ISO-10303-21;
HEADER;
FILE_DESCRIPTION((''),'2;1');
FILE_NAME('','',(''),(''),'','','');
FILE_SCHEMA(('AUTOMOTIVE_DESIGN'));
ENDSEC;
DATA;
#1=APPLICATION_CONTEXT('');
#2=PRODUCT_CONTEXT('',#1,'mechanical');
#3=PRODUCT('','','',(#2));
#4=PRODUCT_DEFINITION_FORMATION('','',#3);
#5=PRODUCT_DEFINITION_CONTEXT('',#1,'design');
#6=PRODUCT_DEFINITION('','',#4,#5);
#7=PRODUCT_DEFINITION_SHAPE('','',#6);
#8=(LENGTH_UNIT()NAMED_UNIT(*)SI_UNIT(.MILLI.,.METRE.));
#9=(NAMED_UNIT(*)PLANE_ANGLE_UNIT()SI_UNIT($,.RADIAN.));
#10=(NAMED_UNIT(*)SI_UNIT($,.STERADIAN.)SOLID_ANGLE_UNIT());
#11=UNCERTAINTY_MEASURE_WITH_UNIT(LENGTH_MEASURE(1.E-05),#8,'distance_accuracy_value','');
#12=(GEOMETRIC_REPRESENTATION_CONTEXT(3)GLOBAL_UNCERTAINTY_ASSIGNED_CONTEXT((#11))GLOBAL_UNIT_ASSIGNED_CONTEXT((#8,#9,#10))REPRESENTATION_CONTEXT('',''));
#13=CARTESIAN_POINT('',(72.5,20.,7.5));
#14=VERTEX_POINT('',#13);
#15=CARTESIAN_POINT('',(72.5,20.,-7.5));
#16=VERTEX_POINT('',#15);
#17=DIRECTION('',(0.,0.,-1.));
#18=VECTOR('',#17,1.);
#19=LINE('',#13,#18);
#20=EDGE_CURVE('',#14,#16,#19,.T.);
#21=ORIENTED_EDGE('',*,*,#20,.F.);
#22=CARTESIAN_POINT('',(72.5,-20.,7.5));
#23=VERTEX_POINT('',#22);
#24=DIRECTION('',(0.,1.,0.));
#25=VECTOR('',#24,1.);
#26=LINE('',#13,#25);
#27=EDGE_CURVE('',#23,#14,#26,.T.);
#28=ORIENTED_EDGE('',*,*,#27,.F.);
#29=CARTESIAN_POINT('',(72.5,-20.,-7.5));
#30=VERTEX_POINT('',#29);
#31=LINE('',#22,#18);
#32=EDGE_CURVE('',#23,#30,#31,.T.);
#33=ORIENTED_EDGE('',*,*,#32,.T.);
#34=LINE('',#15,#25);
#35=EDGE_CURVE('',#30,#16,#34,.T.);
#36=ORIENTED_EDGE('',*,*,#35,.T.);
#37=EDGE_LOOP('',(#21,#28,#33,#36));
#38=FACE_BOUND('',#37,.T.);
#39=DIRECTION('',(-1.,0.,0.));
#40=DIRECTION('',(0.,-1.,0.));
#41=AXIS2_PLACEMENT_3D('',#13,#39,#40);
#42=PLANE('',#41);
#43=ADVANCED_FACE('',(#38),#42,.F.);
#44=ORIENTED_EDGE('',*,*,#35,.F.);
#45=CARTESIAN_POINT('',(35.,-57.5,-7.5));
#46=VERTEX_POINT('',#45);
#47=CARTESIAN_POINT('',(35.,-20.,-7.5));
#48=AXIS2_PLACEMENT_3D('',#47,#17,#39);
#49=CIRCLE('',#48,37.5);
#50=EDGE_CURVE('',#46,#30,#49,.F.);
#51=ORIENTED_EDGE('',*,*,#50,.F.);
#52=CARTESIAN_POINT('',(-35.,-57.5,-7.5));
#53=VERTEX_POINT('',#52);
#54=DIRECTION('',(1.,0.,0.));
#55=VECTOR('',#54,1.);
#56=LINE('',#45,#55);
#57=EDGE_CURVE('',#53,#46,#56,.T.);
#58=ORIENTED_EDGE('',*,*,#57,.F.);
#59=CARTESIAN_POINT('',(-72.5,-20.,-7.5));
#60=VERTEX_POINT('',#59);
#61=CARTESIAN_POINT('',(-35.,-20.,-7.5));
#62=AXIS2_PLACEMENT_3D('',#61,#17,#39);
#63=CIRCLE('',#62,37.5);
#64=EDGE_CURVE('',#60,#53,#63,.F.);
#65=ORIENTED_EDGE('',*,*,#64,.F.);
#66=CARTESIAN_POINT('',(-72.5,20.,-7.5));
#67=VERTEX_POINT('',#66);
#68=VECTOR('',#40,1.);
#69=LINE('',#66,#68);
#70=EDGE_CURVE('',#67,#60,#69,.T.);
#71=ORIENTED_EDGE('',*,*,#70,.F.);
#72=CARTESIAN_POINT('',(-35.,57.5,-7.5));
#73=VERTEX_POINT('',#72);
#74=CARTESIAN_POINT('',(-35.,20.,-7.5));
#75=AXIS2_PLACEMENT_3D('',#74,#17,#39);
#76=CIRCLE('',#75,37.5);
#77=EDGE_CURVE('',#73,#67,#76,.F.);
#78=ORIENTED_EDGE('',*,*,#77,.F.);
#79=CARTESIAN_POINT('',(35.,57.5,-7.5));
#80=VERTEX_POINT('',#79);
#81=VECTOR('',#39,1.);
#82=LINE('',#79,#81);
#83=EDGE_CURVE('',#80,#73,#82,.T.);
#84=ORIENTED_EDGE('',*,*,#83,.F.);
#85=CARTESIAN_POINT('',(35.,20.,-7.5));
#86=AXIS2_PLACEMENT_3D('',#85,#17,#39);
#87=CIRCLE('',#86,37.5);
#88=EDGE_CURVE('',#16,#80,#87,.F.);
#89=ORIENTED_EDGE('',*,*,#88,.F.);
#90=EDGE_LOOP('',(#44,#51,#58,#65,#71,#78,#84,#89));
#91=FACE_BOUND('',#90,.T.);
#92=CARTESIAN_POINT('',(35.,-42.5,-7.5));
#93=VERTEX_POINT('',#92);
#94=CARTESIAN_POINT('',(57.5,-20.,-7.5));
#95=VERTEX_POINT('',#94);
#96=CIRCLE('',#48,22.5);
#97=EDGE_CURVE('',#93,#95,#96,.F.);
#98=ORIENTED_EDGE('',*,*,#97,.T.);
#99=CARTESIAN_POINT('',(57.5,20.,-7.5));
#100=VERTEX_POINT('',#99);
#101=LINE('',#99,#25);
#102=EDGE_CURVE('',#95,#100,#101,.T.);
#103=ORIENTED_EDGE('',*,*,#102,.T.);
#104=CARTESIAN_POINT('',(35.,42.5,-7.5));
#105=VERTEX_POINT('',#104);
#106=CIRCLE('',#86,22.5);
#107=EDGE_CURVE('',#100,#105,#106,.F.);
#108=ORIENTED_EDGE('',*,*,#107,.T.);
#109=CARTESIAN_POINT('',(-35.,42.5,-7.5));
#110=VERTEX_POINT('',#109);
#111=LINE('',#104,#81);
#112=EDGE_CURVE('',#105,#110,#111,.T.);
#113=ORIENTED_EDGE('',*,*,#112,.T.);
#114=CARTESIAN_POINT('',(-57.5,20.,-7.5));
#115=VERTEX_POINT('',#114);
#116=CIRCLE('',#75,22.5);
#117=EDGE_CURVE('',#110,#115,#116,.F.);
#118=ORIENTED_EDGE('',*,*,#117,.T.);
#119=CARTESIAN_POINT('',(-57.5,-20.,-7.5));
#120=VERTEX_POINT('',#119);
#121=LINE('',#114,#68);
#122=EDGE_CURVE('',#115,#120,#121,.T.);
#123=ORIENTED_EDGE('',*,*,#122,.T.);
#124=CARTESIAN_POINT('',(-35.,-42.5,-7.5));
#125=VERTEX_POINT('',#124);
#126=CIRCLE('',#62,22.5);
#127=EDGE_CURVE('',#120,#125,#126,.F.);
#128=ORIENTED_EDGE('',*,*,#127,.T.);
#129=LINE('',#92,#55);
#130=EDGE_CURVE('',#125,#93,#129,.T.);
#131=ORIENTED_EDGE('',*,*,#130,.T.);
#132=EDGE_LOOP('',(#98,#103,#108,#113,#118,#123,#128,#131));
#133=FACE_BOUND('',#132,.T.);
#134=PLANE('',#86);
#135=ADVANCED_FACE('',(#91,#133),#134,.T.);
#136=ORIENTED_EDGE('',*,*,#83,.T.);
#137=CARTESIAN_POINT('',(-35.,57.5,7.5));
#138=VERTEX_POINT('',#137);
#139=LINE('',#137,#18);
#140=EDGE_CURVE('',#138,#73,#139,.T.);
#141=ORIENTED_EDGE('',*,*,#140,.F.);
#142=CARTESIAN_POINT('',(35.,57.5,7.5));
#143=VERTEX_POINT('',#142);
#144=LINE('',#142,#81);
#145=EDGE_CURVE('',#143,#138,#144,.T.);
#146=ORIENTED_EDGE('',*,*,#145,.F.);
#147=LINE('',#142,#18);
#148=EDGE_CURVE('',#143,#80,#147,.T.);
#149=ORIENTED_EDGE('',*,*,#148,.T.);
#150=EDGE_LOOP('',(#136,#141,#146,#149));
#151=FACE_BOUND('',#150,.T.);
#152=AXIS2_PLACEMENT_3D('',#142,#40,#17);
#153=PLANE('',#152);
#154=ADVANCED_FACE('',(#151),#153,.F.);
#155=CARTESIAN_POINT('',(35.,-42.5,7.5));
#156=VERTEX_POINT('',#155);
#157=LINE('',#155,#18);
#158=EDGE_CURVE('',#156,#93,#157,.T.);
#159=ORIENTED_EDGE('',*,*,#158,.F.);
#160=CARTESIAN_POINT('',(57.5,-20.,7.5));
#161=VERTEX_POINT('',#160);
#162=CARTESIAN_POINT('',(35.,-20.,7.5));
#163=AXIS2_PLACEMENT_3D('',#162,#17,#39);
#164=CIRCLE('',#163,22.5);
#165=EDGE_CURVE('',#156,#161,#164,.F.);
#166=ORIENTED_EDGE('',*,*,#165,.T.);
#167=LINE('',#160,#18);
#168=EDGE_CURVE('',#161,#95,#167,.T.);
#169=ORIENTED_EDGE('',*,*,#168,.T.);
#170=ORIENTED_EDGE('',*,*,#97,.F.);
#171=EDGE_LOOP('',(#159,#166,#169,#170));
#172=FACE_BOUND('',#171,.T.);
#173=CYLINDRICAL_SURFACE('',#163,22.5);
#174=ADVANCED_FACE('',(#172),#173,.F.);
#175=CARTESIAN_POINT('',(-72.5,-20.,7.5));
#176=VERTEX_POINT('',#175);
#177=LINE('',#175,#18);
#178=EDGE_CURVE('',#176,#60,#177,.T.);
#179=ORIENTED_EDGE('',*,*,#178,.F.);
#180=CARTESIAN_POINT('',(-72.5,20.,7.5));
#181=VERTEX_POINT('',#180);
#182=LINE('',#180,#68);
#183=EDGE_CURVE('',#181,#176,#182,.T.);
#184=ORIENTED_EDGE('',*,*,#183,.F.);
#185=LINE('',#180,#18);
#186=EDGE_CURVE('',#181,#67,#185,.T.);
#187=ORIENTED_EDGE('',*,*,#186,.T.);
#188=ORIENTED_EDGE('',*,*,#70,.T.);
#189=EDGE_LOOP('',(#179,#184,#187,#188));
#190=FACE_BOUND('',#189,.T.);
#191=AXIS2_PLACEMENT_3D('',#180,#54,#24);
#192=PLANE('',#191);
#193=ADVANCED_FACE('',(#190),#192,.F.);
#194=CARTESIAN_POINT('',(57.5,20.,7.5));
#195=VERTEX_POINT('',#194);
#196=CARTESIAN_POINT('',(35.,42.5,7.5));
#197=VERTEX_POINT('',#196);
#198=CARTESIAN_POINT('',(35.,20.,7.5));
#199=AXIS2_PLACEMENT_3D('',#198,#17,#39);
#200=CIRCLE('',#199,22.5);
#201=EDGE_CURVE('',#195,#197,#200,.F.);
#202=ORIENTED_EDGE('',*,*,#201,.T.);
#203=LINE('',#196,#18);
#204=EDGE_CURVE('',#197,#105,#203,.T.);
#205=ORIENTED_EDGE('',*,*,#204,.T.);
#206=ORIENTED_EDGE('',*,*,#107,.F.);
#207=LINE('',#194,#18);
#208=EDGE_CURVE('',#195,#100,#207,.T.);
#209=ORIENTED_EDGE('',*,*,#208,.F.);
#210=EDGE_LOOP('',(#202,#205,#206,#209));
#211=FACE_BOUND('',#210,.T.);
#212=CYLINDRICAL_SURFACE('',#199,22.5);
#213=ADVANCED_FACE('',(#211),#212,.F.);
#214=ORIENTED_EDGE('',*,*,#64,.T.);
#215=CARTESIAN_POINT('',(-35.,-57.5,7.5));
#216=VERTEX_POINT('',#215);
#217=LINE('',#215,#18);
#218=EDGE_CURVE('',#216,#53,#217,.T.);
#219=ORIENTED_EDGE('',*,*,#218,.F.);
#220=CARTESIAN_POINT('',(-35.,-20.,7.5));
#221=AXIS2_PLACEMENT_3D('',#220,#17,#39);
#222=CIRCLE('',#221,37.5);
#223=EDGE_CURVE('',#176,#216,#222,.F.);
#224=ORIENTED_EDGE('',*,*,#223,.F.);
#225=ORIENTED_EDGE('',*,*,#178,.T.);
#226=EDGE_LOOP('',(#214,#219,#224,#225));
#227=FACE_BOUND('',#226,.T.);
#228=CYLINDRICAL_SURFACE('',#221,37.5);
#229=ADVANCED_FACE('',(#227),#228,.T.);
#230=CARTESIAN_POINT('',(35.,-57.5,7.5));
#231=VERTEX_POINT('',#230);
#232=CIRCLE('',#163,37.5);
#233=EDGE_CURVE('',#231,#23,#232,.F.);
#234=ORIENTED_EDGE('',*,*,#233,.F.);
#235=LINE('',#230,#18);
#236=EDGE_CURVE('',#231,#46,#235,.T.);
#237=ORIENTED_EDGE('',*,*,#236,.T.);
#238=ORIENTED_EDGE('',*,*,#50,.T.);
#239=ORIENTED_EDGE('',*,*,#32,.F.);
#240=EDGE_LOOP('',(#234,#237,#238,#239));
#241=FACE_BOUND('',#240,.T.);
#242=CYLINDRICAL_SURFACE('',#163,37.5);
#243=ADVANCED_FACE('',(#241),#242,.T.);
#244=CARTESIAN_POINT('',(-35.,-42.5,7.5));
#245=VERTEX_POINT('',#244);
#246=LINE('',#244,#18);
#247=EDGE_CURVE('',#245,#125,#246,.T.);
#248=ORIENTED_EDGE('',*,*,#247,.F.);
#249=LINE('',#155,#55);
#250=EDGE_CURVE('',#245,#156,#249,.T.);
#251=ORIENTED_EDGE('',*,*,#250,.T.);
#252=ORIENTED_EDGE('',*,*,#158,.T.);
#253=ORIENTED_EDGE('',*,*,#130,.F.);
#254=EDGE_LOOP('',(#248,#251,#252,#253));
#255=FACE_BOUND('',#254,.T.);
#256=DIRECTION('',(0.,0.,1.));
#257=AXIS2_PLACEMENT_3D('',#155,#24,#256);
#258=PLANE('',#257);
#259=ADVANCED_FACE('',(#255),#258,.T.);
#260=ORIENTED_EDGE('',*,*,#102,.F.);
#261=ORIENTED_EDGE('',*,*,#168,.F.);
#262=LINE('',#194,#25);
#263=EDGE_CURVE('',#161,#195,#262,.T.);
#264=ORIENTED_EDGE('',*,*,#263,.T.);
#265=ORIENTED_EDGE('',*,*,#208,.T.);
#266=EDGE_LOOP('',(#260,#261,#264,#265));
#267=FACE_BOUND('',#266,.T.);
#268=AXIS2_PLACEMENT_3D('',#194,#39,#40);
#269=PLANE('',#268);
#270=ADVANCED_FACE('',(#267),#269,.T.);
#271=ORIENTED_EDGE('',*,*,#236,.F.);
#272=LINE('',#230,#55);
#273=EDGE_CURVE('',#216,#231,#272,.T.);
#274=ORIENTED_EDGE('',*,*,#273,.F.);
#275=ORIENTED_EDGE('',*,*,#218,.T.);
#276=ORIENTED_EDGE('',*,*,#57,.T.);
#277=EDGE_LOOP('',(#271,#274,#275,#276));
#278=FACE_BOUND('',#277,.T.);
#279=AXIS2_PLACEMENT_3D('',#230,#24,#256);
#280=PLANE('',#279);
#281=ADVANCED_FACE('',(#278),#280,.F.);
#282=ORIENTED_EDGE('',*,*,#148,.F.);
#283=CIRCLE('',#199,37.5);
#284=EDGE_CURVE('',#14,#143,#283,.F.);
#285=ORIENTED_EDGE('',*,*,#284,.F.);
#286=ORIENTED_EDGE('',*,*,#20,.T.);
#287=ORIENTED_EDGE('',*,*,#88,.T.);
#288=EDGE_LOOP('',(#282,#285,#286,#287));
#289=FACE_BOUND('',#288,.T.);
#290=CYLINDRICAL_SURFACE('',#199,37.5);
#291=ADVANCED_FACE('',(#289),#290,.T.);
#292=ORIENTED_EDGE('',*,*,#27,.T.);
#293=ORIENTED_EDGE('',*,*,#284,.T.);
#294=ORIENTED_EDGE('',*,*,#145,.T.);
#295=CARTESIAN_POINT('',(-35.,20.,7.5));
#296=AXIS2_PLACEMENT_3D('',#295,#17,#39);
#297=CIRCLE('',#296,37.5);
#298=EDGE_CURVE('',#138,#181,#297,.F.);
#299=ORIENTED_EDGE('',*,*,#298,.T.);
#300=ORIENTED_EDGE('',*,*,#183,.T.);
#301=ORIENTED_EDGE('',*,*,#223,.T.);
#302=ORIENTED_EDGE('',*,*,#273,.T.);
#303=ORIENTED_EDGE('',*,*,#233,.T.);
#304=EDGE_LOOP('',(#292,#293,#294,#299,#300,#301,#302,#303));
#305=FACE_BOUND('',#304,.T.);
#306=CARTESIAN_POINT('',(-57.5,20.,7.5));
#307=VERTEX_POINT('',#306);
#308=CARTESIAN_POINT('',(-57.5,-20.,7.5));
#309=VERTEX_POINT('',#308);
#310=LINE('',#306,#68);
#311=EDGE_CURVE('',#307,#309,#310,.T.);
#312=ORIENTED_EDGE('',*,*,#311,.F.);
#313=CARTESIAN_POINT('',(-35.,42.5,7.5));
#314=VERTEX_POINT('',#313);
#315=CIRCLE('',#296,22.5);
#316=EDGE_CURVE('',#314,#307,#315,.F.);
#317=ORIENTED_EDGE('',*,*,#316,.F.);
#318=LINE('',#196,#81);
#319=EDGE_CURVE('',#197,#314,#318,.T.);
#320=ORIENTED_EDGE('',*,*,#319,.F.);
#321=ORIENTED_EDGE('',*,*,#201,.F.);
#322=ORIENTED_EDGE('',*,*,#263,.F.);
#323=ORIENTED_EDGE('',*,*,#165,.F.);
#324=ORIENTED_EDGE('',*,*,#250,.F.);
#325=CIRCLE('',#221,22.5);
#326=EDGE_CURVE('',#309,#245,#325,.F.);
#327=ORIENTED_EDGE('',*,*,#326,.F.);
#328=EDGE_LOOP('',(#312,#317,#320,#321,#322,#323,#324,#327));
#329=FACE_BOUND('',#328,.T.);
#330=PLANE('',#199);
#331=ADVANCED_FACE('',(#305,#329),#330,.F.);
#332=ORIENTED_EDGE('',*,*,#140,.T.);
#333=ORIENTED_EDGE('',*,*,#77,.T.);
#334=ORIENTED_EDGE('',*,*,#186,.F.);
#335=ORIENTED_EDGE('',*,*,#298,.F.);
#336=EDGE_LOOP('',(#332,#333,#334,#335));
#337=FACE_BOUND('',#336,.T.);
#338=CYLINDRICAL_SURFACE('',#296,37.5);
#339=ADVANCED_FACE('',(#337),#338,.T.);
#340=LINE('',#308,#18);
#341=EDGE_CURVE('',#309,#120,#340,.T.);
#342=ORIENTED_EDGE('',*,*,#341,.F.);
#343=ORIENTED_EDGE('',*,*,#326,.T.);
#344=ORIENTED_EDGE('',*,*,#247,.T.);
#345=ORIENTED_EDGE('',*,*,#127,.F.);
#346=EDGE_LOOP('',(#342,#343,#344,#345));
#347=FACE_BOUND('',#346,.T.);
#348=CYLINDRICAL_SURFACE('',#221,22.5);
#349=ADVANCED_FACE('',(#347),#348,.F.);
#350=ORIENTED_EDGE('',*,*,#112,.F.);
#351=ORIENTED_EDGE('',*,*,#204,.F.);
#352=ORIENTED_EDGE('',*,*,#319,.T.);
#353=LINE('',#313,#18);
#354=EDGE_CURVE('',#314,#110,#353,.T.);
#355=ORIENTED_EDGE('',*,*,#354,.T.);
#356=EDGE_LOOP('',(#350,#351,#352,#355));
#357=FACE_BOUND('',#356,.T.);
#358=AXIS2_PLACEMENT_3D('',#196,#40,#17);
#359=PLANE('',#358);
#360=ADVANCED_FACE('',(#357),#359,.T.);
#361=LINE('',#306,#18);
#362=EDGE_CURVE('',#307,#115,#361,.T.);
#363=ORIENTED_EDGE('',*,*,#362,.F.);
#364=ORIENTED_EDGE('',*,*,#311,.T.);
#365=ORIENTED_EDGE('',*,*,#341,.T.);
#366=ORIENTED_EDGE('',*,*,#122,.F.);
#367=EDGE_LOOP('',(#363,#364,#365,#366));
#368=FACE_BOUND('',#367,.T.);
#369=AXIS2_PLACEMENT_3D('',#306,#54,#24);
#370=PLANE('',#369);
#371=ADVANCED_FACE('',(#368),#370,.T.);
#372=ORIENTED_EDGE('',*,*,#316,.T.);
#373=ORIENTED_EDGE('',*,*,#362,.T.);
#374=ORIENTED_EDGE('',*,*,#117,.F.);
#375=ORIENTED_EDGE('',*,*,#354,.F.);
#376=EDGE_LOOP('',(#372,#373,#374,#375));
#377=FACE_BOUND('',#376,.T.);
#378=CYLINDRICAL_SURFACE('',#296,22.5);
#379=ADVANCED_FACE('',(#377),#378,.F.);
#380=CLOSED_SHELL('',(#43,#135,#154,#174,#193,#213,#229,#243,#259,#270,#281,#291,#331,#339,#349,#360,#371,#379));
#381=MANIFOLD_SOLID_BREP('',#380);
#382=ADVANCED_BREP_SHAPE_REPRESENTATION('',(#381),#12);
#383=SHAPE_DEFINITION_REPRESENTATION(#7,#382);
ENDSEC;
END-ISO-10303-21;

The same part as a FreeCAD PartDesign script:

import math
import FreeCAD as App
import Part
import Sketcher

V = App.Vector

doc = App.newDocument("Part")
body = doc.addObject("PartDesign::Body", "Body")

sketch1 = body.newObject("Sketcher::SketchObject", "Sketch")
sketch1.AttachmentSupport = (doc.getObject("XY_Plane"), [""])
sketch1.MapMode = "FlatFace"
sketch1.addGeometry(Part.LineSegment(V(35, 57.5, 0), V(-35, 57.5, 0)), False)
sketch1.addGeometry(Part.ArcOfCircle(Part.Circle(V(-35, 20, 0), V(0, 0, 1), 37.5), math.radians(90), math.radians(180)), False)
sketch1.addGeometry(Part.LineSegment(V(-72.5, 20, 0), V(-72.5, -20, 0)), False)
sketch1.addGeometry(Part.ArcOfCircle(Part.Circle(V(-35, -20, 0), V(0, 0, 1), 37.5), math.radians(-180), math.radians(-90)), False)
sketch1.addGeometry(Part.LineSegment(V(-35, -57.5, 0), V(35, -57.5, 0)), False)
sketch1.addGeometry(Part.ArcOfCircle(Part.Circle(V(35, -20, 0), V(0, 0, 1), 37.5), math.radians(-90), math.radians(0)), False)
sketch1.addGeometry(Part.LineSegment(V(72.5, -20, 0), V(72.5, 20, 0)), False)
sketch1.addGeometry(Part.ArcOfCircle(Part.Circle(V(35, 20, 0), V(0, 0, 1), 37.5), math.radians(0), math.radians(90)), False)
sketch1.addGeometry(Part.LineSegment(V(-35, 42.5, 0), V(35, 42.5, 0)), False)
sketch1.addGeometry(Part.ArcOfCircle(Part.Circle(V(35, 20, 0), V(0, 0, 1), 22.5), math.radians(0), math.radians(90)), False)
sketch1.addGeometry(Part.LineSegment(V(57.5, 20, 0), V(57.5, -20, 0)), False)
sketch1.addGeometry(Part.ArcOfCircle(Part.Circle(V(35, -20, 0), V(0, 0, 1), 22.5), math.radians(-90), math.radians(0)), False)
sketch1.addGeometry(Part.LineSegment(V(35, -42.5, 0), V(-35, -42.5, 0)), False)
sketch1.addGeometry(Part.ArcOfCircle(Part.Circle(V(-35, -20, 0), V(0, 0, 1), 22.5), math.radians(180), math.radians(270)), False)
sketch1.addGeometry(Part.LineSegment(V(-57.5, -20, 0), V(-57.5, 20, 0)), False)
sketch1.addGeometry(Part.ArcOfCircle(Part.Circle(V(-35, 20, 0), V(0, 0, 1), 22.5), math.radians(90), math.radians(180)), False)
sketch1.addConstraint(Sketcher.Constraint("Tangent", 0, 2, 1, 1))
sketch1.addConstraint(Sketcher.Constraint("Tangent", 1, 2, 2, 1))
sketch1.addConstraint(Sketcher.Constraint("Tangent", 2, 2, 3, 1))
sketch1.addConstraint(Sketcher.Constraint("Tangent", 3, 2, 4, 1))
sketch1.addConstraint(Sketcher.Constraint("Tangent", 4, 2, 5, 1))
sketch1.addConstraint(Sketcher.Constraint("Tangent", 5, 2, 6, 1))
sketch1.addConstraint(Sketcher.Constraint("Tangent", 6, 2, 7, 1))
sketch1.addConstraint(Sketcher.Constraint("Tangent", 7, 2, 0, 1))
sketch1.addConstraint(Sketcher.Constraint("Tangent", 8, 2, 9, 2))
sketch1.addConstraint(Sketcher.Constraint("Tangent", 9, 1, 10, 1))
sketch1.addConstraint(Sketcher.Constraint("Tangent", 10, 2, 11, 2))
sketch1.addConstraint(Sketcher.Constraint("Tangent", 11, 1, 12, 1))
sketch1.addConstraint(Sketcher.Constraint("Tangent", 12, 2, 13, 2))
sketch1.addConstraint(Sketcher.Constraint("Tangent", 13, 1, 14, 1))
sketch1.addConstraint(Sketcher.Constraint("Tangent", 14, 2, 15, 2))
sketch1.addConstraint(Sketcher.Constraint("Tangent", 15, 1, 8, 1))
sketch1.addConstraint(Sketcher.Constraint("Horizontal", 0))
sketch1.addConstraint(Sketcher.Constraint("Vertical", 2))
sketch1.addConstraint(Sketcher.Constraint("Horizontal", 4))
sketch1.addConstraint(Sketcher.Constraint("Vertical", 6))
sketch1.addConstraint(Sketcher.Constraint("Horizontal", 8))
sketch1.addConstraint(Sketcher.Constraint("Vertical", 10))
sketch1.addConstraint(Sketcher.Constraint("Horizontal", 12))
sketch1.addConstraint(Sketcher.Constraint("Vertical", 14))
sketch1.addConstraint(Sketcher.Constraint("Coincident", 9, 3, 7, 3))
sketch1.addConstraint(Sketcher.Constraint("Coincident", 11, 3, 5, 3))
sketch1.addConstraint(Sketcher.Constraint("Coincident", 13, 3, 3, 3))
sketch1.addConstraint(Sketcher.Constraint("Equal", 1, 3))
sketch1.addConstraint(Sketcher.Constraint("Equal", 3, 5))
sketch1.addConstraint(Sketcher.Constraint("Equal", 5, 7))
sketch1.addConstraint(Sketcher.Constraint("Equal", 13, 15))
sketch1.addConstraint(Sketcher.Constraint("Symmetric", 1, 3, 5, 3, -1, 1))
sketch1.addConstraint(Sketcher.Constraint("Radius", 1, 37.5))
sketch1.addConstraint(Sketcher.Constraint("Radius", 9, 22.5))
sketch1.addConstraint(Sketcher.Constraint("DistanceX", 0, 2, 0, 1, 70.0))
sketch1.addConstraint(Sketcher.Constraint("DistanceY", 2, 2, 2, 1, 40.0))
pad1 = body.newObject("PartDesign::Pad", "Pad")
pad1.Profile = sketch1
pad1.Length = 15
pad1.Midplane = True

doc.recompute()
